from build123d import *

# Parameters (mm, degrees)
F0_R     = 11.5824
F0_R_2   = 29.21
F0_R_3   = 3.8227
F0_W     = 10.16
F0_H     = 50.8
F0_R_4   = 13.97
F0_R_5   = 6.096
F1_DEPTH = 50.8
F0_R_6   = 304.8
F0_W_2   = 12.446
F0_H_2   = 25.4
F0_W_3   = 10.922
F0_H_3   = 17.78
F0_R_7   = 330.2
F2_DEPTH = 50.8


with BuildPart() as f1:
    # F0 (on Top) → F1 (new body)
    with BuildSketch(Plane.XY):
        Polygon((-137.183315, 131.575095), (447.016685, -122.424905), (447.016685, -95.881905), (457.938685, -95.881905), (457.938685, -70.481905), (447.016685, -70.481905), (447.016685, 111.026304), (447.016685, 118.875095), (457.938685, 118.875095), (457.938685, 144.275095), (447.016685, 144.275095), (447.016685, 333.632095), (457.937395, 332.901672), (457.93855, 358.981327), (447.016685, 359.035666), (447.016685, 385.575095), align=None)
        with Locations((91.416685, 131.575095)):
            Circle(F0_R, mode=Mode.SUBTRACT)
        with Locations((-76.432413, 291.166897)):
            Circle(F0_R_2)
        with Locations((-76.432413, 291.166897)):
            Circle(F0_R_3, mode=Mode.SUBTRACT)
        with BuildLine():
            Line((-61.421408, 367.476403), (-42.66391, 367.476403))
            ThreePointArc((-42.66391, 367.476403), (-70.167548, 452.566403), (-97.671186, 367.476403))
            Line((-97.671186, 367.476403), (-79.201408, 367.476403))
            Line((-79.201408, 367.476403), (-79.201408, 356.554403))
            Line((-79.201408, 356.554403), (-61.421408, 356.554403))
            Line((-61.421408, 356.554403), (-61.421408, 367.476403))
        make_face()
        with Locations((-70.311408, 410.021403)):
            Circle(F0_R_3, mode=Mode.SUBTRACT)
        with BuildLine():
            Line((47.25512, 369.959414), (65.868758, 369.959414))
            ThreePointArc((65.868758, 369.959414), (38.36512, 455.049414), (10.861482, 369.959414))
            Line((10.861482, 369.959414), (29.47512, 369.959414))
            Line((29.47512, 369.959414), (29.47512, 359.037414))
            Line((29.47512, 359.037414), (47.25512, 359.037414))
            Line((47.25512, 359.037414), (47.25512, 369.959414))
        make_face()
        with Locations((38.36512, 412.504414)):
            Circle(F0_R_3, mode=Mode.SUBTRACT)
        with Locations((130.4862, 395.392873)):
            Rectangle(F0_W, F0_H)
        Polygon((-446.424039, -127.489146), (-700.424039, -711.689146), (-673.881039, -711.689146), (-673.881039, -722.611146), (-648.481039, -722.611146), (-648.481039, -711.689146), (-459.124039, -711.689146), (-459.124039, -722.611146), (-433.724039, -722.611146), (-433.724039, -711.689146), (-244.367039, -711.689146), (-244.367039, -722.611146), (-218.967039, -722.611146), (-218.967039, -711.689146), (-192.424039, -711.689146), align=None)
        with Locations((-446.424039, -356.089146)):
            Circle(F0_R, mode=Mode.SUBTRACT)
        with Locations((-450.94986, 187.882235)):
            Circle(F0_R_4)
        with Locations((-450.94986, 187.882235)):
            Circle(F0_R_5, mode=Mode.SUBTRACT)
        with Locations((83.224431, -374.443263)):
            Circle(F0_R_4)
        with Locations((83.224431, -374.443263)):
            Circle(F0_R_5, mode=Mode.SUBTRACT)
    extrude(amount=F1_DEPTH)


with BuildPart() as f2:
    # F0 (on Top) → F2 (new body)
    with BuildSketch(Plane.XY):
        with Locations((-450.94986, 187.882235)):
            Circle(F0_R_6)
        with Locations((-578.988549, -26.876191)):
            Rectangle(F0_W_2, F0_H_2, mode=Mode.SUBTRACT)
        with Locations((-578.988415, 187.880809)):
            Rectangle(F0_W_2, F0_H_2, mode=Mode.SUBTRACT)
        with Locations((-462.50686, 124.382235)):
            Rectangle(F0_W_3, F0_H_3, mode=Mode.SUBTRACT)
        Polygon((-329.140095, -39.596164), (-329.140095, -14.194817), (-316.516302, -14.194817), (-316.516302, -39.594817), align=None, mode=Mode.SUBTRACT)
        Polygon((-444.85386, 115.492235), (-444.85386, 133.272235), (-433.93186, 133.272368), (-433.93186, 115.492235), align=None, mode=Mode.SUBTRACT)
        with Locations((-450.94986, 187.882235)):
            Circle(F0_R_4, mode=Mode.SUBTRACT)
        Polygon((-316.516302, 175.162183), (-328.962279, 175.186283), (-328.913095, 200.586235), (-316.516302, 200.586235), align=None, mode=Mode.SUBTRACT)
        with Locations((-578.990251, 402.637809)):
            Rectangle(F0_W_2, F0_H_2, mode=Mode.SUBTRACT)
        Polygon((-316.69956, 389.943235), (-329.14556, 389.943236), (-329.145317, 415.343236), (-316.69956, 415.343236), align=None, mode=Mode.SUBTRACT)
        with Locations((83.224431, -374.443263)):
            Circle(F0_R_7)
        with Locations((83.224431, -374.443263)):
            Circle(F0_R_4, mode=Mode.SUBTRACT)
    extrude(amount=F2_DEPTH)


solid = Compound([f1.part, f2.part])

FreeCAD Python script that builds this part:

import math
import FreeCAD as App
import Part
import Sketcher
Q = App.Units.Quantity


def add_polygon(sketch, points):
    """Adds a closed chain of lines whose ends are joined by coincident constraints."""
    first, n = sketch.GeometryCount, len(points)
    for a, b in zip(points, points[1:] + points[:1]):
        sketch.addGeometry(Part.LineSegment(App.Vector(*a, 0), App.Vector(*b, 0)), False)
    for i in range(n):
        sketch.addConstraint(Sketcher.Constraint("Coincident", first + i, 2, first + (i + 1) % n, 1))

doc = App.newDocument("Part")
body = doc.addObject("PartDesign::Body", "Body")
body.AllowCompound = True

# Sketch on XY plane
sketch1 = body.newObject("Sketcher::SketchObject", "Sketch")
sketch1.AttachmentSupport = (doc.getObject("XY_Plane"), [""])
sketch1.MapMode = "FlatFace"
add_polygon(sketch1, [(-137.2, 131.6), (447, -122.4), (447, -95.9), (457.9, -95.9), (457.9, -70.5), (447, -70.5), (447, 118.9), (457.9, 118.9), (457.9, 144.3), (447, 144.3), (447, 333.6), (457.9, 332.9), (457.9, 359), (447, 359), (447, 385.6)])  # lines 0-14
sketch1.addGeometry(Part.Circle(App.Vector(91.4, 131.6, 0), App.Vector(0, 0, 1), 11.6), False)  # 15
sketch1.addGeometry(Part.Circle(App.Vector(-76.4, 291.2, 0), App.Vector(0, 0, 1), 29.2), False)  # 16
sketch1.addGeometry(Part.Circle(App.Vector(-76.4, 291.2, 0), App.Vector(0, 0, 1), 3.8), False)  # 17
sketch1.addGeometry(Part.LineSegment(App.Vector(-61.4, 367.5, 0), App.Vector(-42.7, 367.5, 0)), False)  # 18
sketch1.addGeometry(Part.ArcOfCircle(Part.Circle(App.Vector(-70.2, 405.6, 0), App.Vector(0, 0, 1), 47), math.radians(-54), math.radians(234)), False)  # 19
sketch1.addGeometry(Part.LineSegment(App.Vector(-97.7, 367.5, 0), App.Vector(-79.2, 367.5, 0)), False)  # 20
sketch1.addGeometry(Part.LineSegment(App.Vector(-79.2, 367.5, 0), App.Vector(-79.2, 356.6, 0)), False)  # 21
sketch1.addGeometry(Part.LineSegment(App.Vector(-79.2, 356.6, 0), App.Vector(-61.4, 356.6, 0)), False)  # 22
sketch1.addGeometry(Part.LineSegment(App.Vector(-61.4, 356.6, 0), App.Vector(-61.4, 367.5, 0)), False)  # 23
sketch1.addGeometry(Part.Circle(App.Vector(-70.3, 410, 0), App.Vector(0, 0, 1), 3.8), False)  # 24
sketch1.addGeometry(Part.LineSegment(App.Vector(47.3, 370, 0), App.Vector(65.9, 370, 0)), False)  # 25
sketch1.addGeometry(Part.ArcOfCircle(Part.Circle(App.Vector(38.4, 408.1, 0), App.Vector(0, 0, 1), 47), math.radians(-54), math.radians(234)), False)  # 26
sketch1.addGeometry(Part.LineSegment(App.Vector(10.9, 370, 0), App.Vector(29.5, 370, 0)), False)  # 27
sketch1.addGeometry(Part.LineSegment(App.Vector(29.5, 370, 0), App.Vector(29.5, 359, 0)), False)  # 28
sketch1.addGeometry(Part.LineSegment(App.Vector(29.5, 359, 0), App.Vector(47.3, 359, 0)), False)  # 29
sketch1.addGeometry(Part.LineSegment(App.Vector(47.3, 359, 0), App.Vector(47.3, 370, 0)), False)  # 30
sketch1.addGeometry(Part.Circle(App.Vector(38.4, 412.5, 0), App.Vector(0, 0, 1), 3.8), False)  # 31
add_polygon(sketch1, [(125.4, 420.8), (125.4, 370), (135.6, 370), (135.6, 420.8)])  # lines 32-35
add_polygon(sketch1, [(-446.4, -127.5), (-700.4, -711.7), (-673.9, -711.7), (-673.9, -722.6), (-648.5, -722.6), (-648.5, -711.7), (-459.1, -711.7), (-459.1, -722.6), (-433.7, -722.6), (-433.7, -711.7), (-244.4, -711.7), (-244.4, -722.6), (-219, -722.6), (-219, -711.7), (-192.4, -711.7)])  # lines 36-50
sketch1.addGeometry(Part.Circle(App.Vector(-446.4, -356.1, 0), App.Vector(0, 0, 1), 11.6), False)  # 51
sketch1.addGeometry(Part.Circle(App.Vector(-450.9, 187.9, 0), App.Vector(0, 0, 1), 14), False)  # 52
sketch1.addGeometry(Part.Circle(App.Vector(-450.9, 187.9, 0), App.Vector(0, 0, 1), 6.1), False)  # 53
sketch1.addGeometry(Part.Circle(App.Vector(83.2, -374.4, 0), App.Vector(0, 0, 1), 14), False)  # 54
sketch1.addGeometry(Part.Circle(App.Vector(83.2, -374.4, 0), App.Vector(0, 0, 1), 6.1), False)  # 55
sketch1.addConstraint([
    Sketcher.Constraint("Coincident", 18, 2, 19, 1),
    Sketcher.Constraint("Coincident", 19, 2, 20, 1),
    Sketcher.Constraint("Coincident", 20, 2, 21, 1),
    Sketcher.Constraint("Coincident", 21, 2, 22, 1),
    Sketcher.Constraint("Coincident", 22, 2, 23, 1),
    Sketcher.Constraint("Coincident", 23, 2, 18, 1),
    Sketcher.Constraint("Coincident", 25, 2, 26, 1),
    Sketcher.Constraint("Coincident", 26, 2, 27, 1),
    Sketcher.Constraint("Coincident", 27, 2, 28, 1),
    Sketcher.Constraint("Coincident", 28, 2, 29, 1),
    Sketcher.Constraint("Coincident", 29, 2, 30, 1),
    Sketcher.Constraint("Coincident", 30, 2, 25, 1),
    Sketcher.Constraint("Vertical", 1),
    Sketcher.Constraint("Horizontal", 2),
    Sketcher.Constraint("Vertical", 3),
    Sketcher.Constraint("Horizontal", 4),
    Sketcher.Constraint("Vertical", 5),
    Sketcher.Constraint("Horizontal", 6),
    Sketcher.Constraint("Vertical", 7),
    Sketcher.Constraint("Horizontal", 8),
    Sketcher.Constraint("Vertical", 9),
    Sketcher.Constraint("Vertical", 13),
    Sketcher.Constraint("Horizontal", 18),
    Sketcher.Constraint("Horizontal", 20),
    Sketcher.Constraint("Vertical", 21),
    Sketcher.Constraint("Horizontal", 22),
    Sketcher.Constraint("Vertical", 23),
    Sketcher.Constraint("Horizontal", 25),
    Sketcher.Constraint("Horizontal", 27),
    Sketcher.Constraint("Vertical", 28),
    Sketcher.Constraint("Horizontal", 29),
    Sketcher.Constraint("Vertical", 30),
    Sketcher.Constraint("Vertical", 32),
    Sketcher.Constraint("Horizontal", 33),
    Sketcher.Constraint("Vertical", 34),
    Sketcher.Constraint("Horizontal", 35),
    Sketcher.Constraint("Horizontal", 37),
    Sketcher.Constraint("Vertical", 38),
    Sketcher.Constraint("Horizontal", 39),
    Sketcher.Constraint("Vertical", 40),
    Sketcher.Constraint("Horizontal", 41),
    Sketcher.Constraint("Vertical", 42),
    Sketcher.Constraint("Horizontal", 43),
    Sketcher.Constraint("Vertical", 44),
    Sketcher.Constraint("Horizontal", 45),
    Sketcher.Constraint("Vertical", 46),
    Sketcher.Constraint("Horizontal", 47),
    Sketcher.Constraint("Vertical", 48),
    Sketcher.Constraint("Horizontal", 49),
    Sketcher.Constraint("Coincident", 17, 3, 16, 3),
    Sketcher.Constraint("Coincident", 53, 3, 52, 3),
    Sketcher.Constraint("Coincident", 55, 3, 54, 3),
    Sketcher.Constraint("Equal", 17, 24),
    Sketcher.Constraint("Equal", 19, 26),
    Sketcher.Constraint("Equal", 24, 31),
    Sketcher.Constraint("Equal", 15, 51),
    Sketcher.Constraint("Equal", 52, 54),
    Sketcher.Constraint("Equal", 53, 55),
    Sketcher.Constraint("Perpendicular", 0, 36),
    Sketcher.Constraint("Perpendicular", 14, 50),
    Sketcher.Constraint("Horizontal", 15, 3, 14, 2),
    Sketcher.Constraint("Horizontal", 18, 2, 19, 2),
    Sketcher.Constraint("Horizontal", 25, 2, 26, 2),
    Sketcher.Constraint("Horizontal", 37, 2, 40, 2),
    Sketcher.Constraint("Horizontal", 39, 2, 42, 2),
    Sketcher.Constraint("Horizontal", 41, 2, 44, 2),
    Sketcher.Constraint("Horizontal", 43, 2, 46, 2),
    Sketcher.Constraint("Horizontal", 45, 2, 48, 2),
    Sketcher.Constraint("Vertical", 26, 3, 31, 3),
    Sketcher.Constraint("Vertical", 1, 2, 4, 2),
    Sketcher.Constraint("Vertical", 3, 2, 6, 2),
    Sketcher.Constraint("Vertical", 5, 2, 8, 2),
    Sketcher.Constraint("Vertical", 9, 2, 12, 2),
    Sketcher.Constraint("Vertical", 51, 3, 50, 2),
    Sketcher.Constraint("Equal", 25, 27),
    Sketcher.Constraint("Equal", 22, 29),
    Sketcher.Constraint("Equal", 39, 43),
    Sketcher.Constraint("Equal", 41, 45),
    Sketcher.Constraint("Equal", 43, 47),
    Sketcher.Constraint("Equal", 37, 49),
    Sketcher.Constraint("Equal", 49, 1),
    Sketcher.Constraint("Equal", 47, 3),
    Sketcher.Constraint("Equal", 45, 5),
    Sketcher.Constraint("Equal", 3, 7),
    Sketcher.Constraint("Equal", 5, 9),
    Sketcher.Constraint("Equal", 8, 21),
    Sketcher.Constraint("Equal", 23, 28),
    Sketcher.Constraint("Equal", 30, 38),
    Sketcher.Constraint("Equal", 0, 14),
    Sketcher.Constraint("Equal", 14, 36),
    Sketcher.Constraint("Diameter", 16, Q("2.3 in")),
    Sketcher.Constraint("Diameter", 52, Q("1.1 in")),
    Sketcher.Constraint("Diameter", 53, Q("0.48 in")),
    Sketcher.Constraint("DistanceX", 39, 1, 39, 2, Q("1 in")),
    Sketcher.Constraint("DistanceY", 32, 2, 32, 1, Q("2 in")),
    Sketcher.Constraint("Radius", 19, Q("1.85 in")),
    Sketcher.Constraint("Diameter", 15, Q("0.912 in")),
    Sketcher.Constraint("Diameter", 17, Q("0.301 in")),
    Sketcher.Constraint("DistanceX", 22, 1, 22, 2, Q("0.7 in")),
    Sketcher.Constraint("DistanceX", 33, 1, 33, 2, Q("0.4 in")),
    Sketcher.Constraint("DistanceX", 15, 3, 0, 2, Q("14 in")),
    Sketcher.Constraint("DistanceY", 0, 2, 15, 3, Q("10 in")),
    Sketcher.Constraint("DistanceX", 14, 2, 15, 3, Q("9 in")),
    Sketcher.Constraint("DistanceY", 36, 2, 51, 3, Q("14 in")),
    Sketcher.Constraint("DistanceX", 2, 1, 2, 2, Q("0.43 in")),
    Sketcher.Constraint("DistanceY", 18, 2, 19, 3, Q("1.5 in")),
    Sketcher.Constraint("DistanceY", 25, 2, 26, 3, Q("1.5 in")),
    Sketcher.Constraint("Distance", 12, Q("0.43 in")),
    Sketcher.Constraint("DistanceX", 37, 1, 37, 2, Q("1.045 in")),
    Sketcher.Constraint("DistanceX", 20, 2, 24, 3, Q("0.35 in")),
    Sketcher.Constraint("DistanceY", 19, 3, 24, 3, Q("0.175 in")),
    Sketcher.Constraint("DistanceY", 26, 3, 31, 3, Q("0.175 in")),
    Sketcher.Constraint("DistanceX", 20, 1, 20, 2, Q("18.469778 mm")),
    Sketcher.Constraint("DistanceY", 13, 1, 13, 2, Q("26.539429 mm")),
    Sketcher.Constraint("DistanceX", -1, 1, 32, 2, Q("125.4062 mm")),
    Sketcher.Constraint("DistanceX", 16, 3, 15, 3, Q("167.849098 mm")),
    Sketcher.Constraint("DistanceY", 15, 3, 16, 3, Q("159.591802 mm")),
    Sketcher.Constraint("DistanceY", 54, 3, 52, 3, Q("562.325498 mm")),
    Sketcher.Constraint("Distance", 10, Q("10.94511 mm")),
    Sketcher.Constraint("DistanceX", 24, 3, -1, 1, Q("70.311408 mm")),
    Sketcher.Constraint("DistanceX", -1, 1, 26, 3, Q("38.36512 mm")),
    Sketcher.Constraint("DistanceX", 51, 3, -1, 1, Q("446.424039 mm")),
    Sketcher.Constraint("DistanceX", 52, 3, -1, 1, Q("450.94986 mm")),
    Sketcher.Constraint("DistanceX", -1, 1, 54, 3, Q("83.224431 mm")),
    Sketcher.Constraint("DistanceY", -1, 1, 10, 2, Q("332.901672 mm")),
    Sketcher.Constraint("DistanceX", -1, 1, 11, 2, Q("457.93855 mm")),
    Sketcher.Constraint("DistanceY", 15, 3, 24, 3, Q("278.446308 mm")),
    Sketcher.Constraint("DistanceY", 19, 3, 26, 3, Q("2.483011 mm")),
    Sketcher.Constraint("DistanceY", 51, 3, 15, 3, Q("487.664241 mm")),
    Sketcher.Constraint("DistanceY", 52, 3, 16, 3, Q("103.284662 mm")),
    Sketcher.Constraint("DistanceX", 9, 2, 10, 2, Q("10.92071 mm")),
    Sketcher.Constraint("DistanceY", 11, 2, 12, 2, Q("0.054339 mm")),
    Sketcher.Constraint("DistanceY", 25, 2, 32, 2, Q("0.033459 mm")),
])
pad1 = body.newObject("PartDesign::Pad", "Pad")
pad1.Profile = sketch1
pad1.Length = Q("2 in")
body2 = doc.addObject("PartDesign::Body", "Body001")
body2.AllowCompound = True

# Sketch on XY plane
sketch2 = body2.newObject("Sketcher::SketchObject", "Sketch001")
sketch2.AttachmentSupport = (doc.getObject("XY_Plane001"), [""])
sketch2.MapMode = "FlatFace"
sketch2.addGeometry(Part.Circle(App.Vector(-451, 188, 0), App.Vector(0, 0, 1), 305), False)  # 0
add_polygon(sketch2, [(-573, -40), (-585, -40), (-585, -14), (-573, -14)])  # lines 1-4
add_polygon(sketch2, [(-457, 115), (-468, 115), (-468, 133), (-457, 133)])  # lines 5-8
add_polygon(sketch2, [(-317, -40), (-329, -40), (-329, -14), (-317, -14)])  # lines 9-12
add_polygon(sketch2, [(-434, 115), (-445, 115), (-445, 133), (-434, 133)])  # lines 13-16
add_polygon(sketch2, [(-573, 175), (-585, 175), (-585, 201), (-573, 201)])  # lines 17-20
sketch2.addGeometry(Part.Circle(App.Vector(-451, 188, 0), App.Vector(0, 0, 1), 14), False)  # 21
add_polygon(sketch2, [(-573, 390), (-585, 390), (-585, 415), (-573, 415)])  # lines 22-25
add_polygon(sketch2, [(-317, 201), (-317, 175), (-329, 175), (-329, 201)])  # lines 26-29
add_polygon(sketch2, [(-317, 415), (-317, 390), (-329, 390), (-329, 415)])  # lines 30-33
sketch2.addGeometry(Part.Circle(App.Vector(83, -374, 0), App.Vector(0, 0, 1), 330), False)  # 34
sketch2.addGeometry(Part.Circle(App.Vector(83, -374, 0), App.Vector(0, 0, 1), 14), False)  # 35
sketch2.addConstraint([
    Sketcher.Constraint("Horizontal", 1),
    Sketcher.Constraint("Vertical", 2),
    Sketcher.Constraint("Horizontal", 3),
    Sketcher.Constraint("Vertical", 4),
    Sketcher.Constraint("Horizontal", 5),
    Sketcher.Constraint("Vertical", 6),
    Sketcher.Constraint("Horizontal", 7),
    Sketcher.Constraint("Vertical", 8),
    Sketcher.Constraint("Vertical", 10),
    Sketcher.Constraint("Horizontal", 11),
    Sketcher.Constraint("Vertical", 12),
    Sketcher.Constraint("Horizontal", 13),
    Sketcher.Constraint("Vertical", 14),
    Sketcher.Constraint("Vertical", 16),
    Sketcher.Constraint("Horizontal", 17),
    Sketcher.Constraint("Vertical", 18),
    Sketcher.Constraint("Horizontal", 19),
    Sketcher.Constraint("Vertical", 20),
    Sketcher.Constraint("Horizontal", 22),
    Sketcher.Constraint("Vertical", 23),
    Sketcher.Constraint("Horizontal", 24),
    Sketcher.Constraint("Vertical", 25),
    Sketcher.Constraint("Vertical", 26),
    Sketcher.Constraint("Horizontal", 29),
    Sketcher.Constraint("Vertical", 30),
    Sketcher.Constraint("Horizontal", 31),
    Sketcher.Constraint("Horizontal", 33),
    Sketcher.Constraint("Coincident", 21, 3, 0, 3),
    Sketcher.Constraint("Coincident", 35, 3, 34, 3),
    Sketcher.Constraint("Equal", 21, 35),
    Sketcher.Constraint("Perpendicular", 27, 28),
    Sketcher.Constraint("Horizontal", 8, 2, 13, 2),
    Sketcher.Constraint("Horizontal", 7, 2, 14, 2),
    Sketcher.Constraint("Vertical", 12, 2, 26, 2),
    Sketcher.Constraint("Equal", 7, 13),
    Sketcher.Constraint("Equal", 3, 17),
    Sketcher.Constraint("Equal", 19, 22),
    Sketcher.Constraint("Equal", 24, 31),
    Sketcher.Constraint("Equal", 4, 12),
    Sketcher.Constraint("Equal", 12, 18),
    Sketcher.Constraint("Equal", 20, 23),
    Sketcher.Constraint("Equal", 25, 30),
    Sketcher.Constraint("Equal", 28, 32),
    Sketcher.Constraint("Diameter", 0, Q("24 in")),
    Sketcher.Constraint("Diameter", 34, Q("26 in")),
    Sketcher.Constraint("Diameter", 21, Q("1.1 in")),
    Sketcher.Constraint("DistanceY", 2, 1, 2, 2, Q("1 in")),
    Sketcher.Constraint("DistanceY", 6, 1, 6, 2, Q("0.7 in")),
    Sketcher.Constraint("DistanceX", 1, 2, 1, 1, Q("0.49 in")),
    Sketcher.Constraint("DistanceX", 5, 2, 5, 1, Q("0.43 in")),
    Sketcher.Constraint("Distance", 27, Q("0.49 in")),
    Sketcher.Constraint("DistanceX", 5, 2, 0, 3, Q("0.67 in")),
    Sketcher.Constraint("DistanceY", 5, 2, 0, 3, Q("2.85 in")),
    Sketcher.Constraint("DistanceX", 8, 2, 13, 2, Q("0.48 in")),
    Sketcher.Constraint("DistanceY", 18, 2, 22, 2, Q("7.455 in")),
    Sketcher.Constraint("DistanceY", 29, 2, 30, 2, Q("7.455 in")),
    Sketcher.Constraint("DistanceY", 26, 2, 26, 1, Q("25.424052 mm")),
    Sketcher.Constraint("DistanceX", 11, 2, -1, 1, Q("316.516302 mm")),
    Sketcher.Constraint("DistanceY", 34, 3, 0, 3, Q("562.325498 mm")),
    Sketcher.Constraint("DistanceY", 9, 2, 8, 2, Q("155.088399 mm")),
    Sketcher.Constraint("DistanceY", 0, 3, 28, 2, Q("12.704 mm")),
    Sketcher.Constraint("DistanceX", 0, 3, 30, 2, Q("134.2503 mm")),
    Sketcher.Constraint("DistanceX", 11, 1, 11, 2, Q("12.623793 mm")),
    Sketcher.Constraint("DistanceX", 33, 1, 33, 2, Q("12.445757 mm")),
    Sketcher.Constraint("DistanceY", 10, 1, 10, 2, Q("25.401347 mm")),
    Sketcher.Constraint("DistanceY", 16, 2, 16, 1, Q("17.780133 mm")),
    Sketcher.Constraint("DistanceX", 0, 3, -1, 1, Q("450.94986 mm")),
    Sketcher.Constraint("DistanceX", -1, 1, 34, 3, Q("83.224431 mm")),
    Sketcher.Constraint("DistanceX", 1, 2, -1, 1, Q("585.211549 mm")),
    Sketcher.Constraint("DistanceY", 1, 2, -1, 1, Q("39.576191 mm")),
    Sketcher.Constraint("DistanceY", -1, 1, 15, 2, Q("133.272368 mm")),
    Sketcher.Constraint("DistanceY", -1, 1, 17, 2, Q("175.180809 mm")),
    Sketcher.Constraint("DistanceX", 22, 2, -1, 1, Q("585.213251 mm")),
    Sketcher.Constraint("DistanceX", 17, 2, -1, 1, Q("585.211415 mm")),
])
pad2 = body2.newObject("PartDesign::Pad", "Pad001")
pad2.Profile = sketch2
pad2.Length = Q("2 in")

doc.recompute()
